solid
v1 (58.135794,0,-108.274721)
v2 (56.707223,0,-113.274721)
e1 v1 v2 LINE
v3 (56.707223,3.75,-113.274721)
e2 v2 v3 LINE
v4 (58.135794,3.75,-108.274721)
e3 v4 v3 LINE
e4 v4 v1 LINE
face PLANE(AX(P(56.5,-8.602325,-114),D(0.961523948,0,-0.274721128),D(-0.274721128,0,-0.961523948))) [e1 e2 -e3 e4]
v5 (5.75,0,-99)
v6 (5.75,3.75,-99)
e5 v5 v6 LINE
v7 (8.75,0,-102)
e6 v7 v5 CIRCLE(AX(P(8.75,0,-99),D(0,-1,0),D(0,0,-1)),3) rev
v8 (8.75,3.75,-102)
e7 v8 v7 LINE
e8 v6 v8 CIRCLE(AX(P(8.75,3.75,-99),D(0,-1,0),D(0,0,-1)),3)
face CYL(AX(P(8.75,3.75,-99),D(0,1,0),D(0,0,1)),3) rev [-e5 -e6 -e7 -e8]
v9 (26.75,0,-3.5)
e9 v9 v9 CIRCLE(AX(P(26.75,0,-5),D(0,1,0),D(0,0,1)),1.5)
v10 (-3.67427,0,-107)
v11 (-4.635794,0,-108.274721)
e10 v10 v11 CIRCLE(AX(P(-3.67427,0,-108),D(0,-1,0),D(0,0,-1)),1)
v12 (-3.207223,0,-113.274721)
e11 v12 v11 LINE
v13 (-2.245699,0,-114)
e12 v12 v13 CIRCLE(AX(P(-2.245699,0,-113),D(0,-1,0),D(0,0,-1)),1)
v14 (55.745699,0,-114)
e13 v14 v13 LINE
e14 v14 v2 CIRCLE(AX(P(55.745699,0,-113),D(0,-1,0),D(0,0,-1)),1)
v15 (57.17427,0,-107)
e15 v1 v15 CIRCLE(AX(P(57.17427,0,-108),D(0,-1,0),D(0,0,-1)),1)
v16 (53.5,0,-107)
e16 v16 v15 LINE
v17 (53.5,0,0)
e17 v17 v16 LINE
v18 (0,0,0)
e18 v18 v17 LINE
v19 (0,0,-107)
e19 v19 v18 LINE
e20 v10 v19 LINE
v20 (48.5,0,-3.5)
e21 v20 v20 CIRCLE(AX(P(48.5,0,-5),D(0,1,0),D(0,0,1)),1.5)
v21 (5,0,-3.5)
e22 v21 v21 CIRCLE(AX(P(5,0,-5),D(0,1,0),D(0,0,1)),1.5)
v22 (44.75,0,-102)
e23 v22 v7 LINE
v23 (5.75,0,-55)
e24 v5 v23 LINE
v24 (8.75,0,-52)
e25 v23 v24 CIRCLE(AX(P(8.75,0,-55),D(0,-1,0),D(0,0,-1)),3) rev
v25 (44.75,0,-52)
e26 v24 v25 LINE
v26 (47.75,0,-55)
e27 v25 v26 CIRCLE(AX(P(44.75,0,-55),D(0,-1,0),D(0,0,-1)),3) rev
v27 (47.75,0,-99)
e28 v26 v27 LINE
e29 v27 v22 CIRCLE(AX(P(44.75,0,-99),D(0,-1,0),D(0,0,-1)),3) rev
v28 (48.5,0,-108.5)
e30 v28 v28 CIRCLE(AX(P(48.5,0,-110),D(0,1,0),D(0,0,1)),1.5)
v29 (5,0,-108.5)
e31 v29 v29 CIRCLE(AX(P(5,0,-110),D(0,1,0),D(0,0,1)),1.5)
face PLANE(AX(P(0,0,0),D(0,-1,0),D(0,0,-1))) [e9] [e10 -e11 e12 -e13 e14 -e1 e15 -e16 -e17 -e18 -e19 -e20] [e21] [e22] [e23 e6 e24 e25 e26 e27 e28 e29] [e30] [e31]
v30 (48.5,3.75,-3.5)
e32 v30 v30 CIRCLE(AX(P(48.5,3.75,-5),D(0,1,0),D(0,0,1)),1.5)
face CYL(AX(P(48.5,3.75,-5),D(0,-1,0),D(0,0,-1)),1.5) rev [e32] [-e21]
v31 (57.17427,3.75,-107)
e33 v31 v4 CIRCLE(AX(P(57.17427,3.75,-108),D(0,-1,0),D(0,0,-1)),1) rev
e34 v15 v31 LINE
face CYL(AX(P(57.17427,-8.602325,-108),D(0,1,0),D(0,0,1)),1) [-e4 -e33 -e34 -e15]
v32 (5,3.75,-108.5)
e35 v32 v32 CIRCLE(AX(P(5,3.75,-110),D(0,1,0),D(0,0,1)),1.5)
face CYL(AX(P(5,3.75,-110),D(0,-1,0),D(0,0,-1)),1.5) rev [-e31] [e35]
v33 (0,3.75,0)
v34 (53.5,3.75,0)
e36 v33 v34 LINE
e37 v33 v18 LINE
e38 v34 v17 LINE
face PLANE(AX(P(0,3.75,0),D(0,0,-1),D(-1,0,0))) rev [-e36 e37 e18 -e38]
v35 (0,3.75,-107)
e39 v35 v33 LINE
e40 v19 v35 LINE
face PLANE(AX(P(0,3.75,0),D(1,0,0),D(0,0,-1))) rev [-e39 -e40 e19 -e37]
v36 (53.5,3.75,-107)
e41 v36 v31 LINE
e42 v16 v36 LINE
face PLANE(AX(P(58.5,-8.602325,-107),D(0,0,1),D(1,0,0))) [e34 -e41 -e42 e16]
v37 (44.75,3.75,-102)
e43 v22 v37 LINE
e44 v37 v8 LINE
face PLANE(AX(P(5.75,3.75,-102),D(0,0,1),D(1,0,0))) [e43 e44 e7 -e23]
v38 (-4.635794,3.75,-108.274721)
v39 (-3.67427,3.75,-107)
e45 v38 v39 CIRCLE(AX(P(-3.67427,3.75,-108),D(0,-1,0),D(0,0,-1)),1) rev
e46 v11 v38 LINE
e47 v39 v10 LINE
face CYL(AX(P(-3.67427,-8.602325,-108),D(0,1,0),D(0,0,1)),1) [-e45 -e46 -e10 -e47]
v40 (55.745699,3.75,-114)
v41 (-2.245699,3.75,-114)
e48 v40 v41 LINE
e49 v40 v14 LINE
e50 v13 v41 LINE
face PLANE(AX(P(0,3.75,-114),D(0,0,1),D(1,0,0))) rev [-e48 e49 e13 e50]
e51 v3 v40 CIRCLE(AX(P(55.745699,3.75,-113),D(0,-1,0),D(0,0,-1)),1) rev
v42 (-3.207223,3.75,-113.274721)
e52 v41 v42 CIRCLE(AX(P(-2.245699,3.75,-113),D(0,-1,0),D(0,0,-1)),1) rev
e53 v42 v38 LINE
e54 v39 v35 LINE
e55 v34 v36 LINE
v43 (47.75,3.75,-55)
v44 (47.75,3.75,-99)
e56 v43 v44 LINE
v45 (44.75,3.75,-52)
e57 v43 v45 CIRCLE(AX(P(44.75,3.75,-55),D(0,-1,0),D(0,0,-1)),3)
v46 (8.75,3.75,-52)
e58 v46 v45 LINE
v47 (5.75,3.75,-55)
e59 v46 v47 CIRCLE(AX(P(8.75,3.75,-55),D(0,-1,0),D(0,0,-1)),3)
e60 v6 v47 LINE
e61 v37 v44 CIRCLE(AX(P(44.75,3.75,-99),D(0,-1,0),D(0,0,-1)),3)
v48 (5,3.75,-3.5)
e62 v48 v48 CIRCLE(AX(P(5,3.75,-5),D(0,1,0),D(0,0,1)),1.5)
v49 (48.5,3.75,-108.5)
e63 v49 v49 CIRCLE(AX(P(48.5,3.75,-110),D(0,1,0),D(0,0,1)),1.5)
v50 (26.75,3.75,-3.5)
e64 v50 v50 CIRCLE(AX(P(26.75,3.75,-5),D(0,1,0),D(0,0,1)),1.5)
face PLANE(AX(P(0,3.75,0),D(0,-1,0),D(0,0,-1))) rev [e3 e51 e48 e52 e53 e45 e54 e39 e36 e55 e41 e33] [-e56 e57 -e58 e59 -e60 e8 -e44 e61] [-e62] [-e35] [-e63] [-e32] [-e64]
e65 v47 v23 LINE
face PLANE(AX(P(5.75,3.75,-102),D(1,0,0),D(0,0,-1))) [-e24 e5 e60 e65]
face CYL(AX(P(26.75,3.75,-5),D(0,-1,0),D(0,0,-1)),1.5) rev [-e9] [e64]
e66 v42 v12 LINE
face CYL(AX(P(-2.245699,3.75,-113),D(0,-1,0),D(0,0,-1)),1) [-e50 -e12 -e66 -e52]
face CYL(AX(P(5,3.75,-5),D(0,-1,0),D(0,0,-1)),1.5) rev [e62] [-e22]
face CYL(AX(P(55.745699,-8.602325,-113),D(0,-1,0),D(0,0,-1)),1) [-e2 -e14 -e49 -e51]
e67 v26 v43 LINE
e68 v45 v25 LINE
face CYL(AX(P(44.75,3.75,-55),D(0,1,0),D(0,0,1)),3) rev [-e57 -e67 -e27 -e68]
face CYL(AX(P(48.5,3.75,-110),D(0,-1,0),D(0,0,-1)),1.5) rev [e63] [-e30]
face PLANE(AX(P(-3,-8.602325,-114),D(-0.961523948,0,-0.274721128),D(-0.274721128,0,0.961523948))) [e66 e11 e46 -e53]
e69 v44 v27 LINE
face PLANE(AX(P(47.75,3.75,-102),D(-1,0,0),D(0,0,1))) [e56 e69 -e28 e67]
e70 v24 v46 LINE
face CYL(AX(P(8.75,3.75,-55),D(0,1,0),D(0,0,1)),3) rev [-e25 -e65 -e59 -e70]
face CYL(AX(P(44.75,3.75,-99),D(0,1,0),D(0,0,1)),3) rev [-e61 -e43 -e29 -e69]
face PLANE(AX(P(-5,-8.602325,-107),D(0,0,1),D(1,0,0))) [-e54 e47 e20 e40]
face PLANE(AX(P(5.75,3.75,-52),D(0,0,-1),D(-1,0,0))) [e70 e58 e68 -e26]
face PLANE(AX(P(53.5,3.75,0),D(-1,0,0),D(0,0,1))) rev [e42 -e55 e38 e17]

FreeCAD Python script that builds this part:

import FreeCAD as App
import Part
import Sketcher


def edges_at(feature, points):
    """Names of the edges that pass closest to the given points."""
    edges = feature.Shape.Edges
    near = lambda p: min(range(len(edges)), key=lambda i: edges[i].distToShape(Part.Vertex(*p))[0])
    return sorted({f"Edge{near(p) + 1}" for p in points})


def add_polygon(sketch, points):
    """Adds a closed chain of lines whose ends are joined by coincident constraints."""
    first, n = sketch.GeometryCount, len(points)
    for a, b in zip(points, points[1:] + points[:1]):
        sketch.addGeometry(Part.LineSegment(App.Vector(*a, 0), App.Vector(*b, 0)), False)
    for i in range(n):
        sketch.addConstraint(Sketcher.Constraint("Coincident", first + i, 2, first + (i + 1) % n, 1))

doc = App.newDocument("Part")
params = doc.addObject("Spreadsheet::Sheet", "Params")
for row, (alias, value) in enumerate([
    ("sketch1_diameter", "3 mm"),
    ("sketch1_width", "42 mm"),
    ("sketch1_height", "114 mm"),
    ("sketch1_height2", "50 mm"),
    ("sketch1_width2", "53.5 mm"),
    ("pad1_length", "3.75 mm"),
    ("fillet_radius", "3 mm"),
    ("sketch2_width", "3 mm"),
    ("sketch2_width2", "5 mm"),
    ("sketch2_height", "7 mm"),
    ("pad2_length", "3.75 mm"),
    ("fillet2_radius", "1 mm"),
], start=1):
    params.set(f"A{row}", alias)
    params.set(f"B{row}", "=" + value)
    params.setAlias(f"B{row}", alias)

body = doc.addObject("PartDesign::Body", "Body")

# Sketch on XZ plane
sketch1 = body.newObject("Sketcher::SketchObject", "Sketch")
sketch1.AttachmentSupport = (doc.getObject("XZ_Plane"), [""])
sketch1.MapMode = "FlatFace"
add_polygon(sketch1, [(0, -114), (0, 0), (53.5, 0), (53.5, -114)])  # lines 0-3
sketch1.addGeometry(Part.Circle(App.Vector(5, -5, 0), App.Vector(0, 0, 1), 1.5), False)  # 4
sketch1.addGeometry(Part.Circle(App.Vector(26.8, -5, 0), App.Vector(0, 0, 1), 1.5), False)  # 5
sketch1.addGeometry(Part.Circle(App.Vector(48.5, -5, 0), App.Vector(0, 0, 1), 1.5), False)  # 6
sketch1.addGeometry(Part.Circle(App.Vector(5, -110, 0), App.Vector(0, 0, 1), 1.5), False)  # 7
add_polygon(sketch1, [(47.8, -52), (5.8, -52), (5.8, -102), (47.8, -102)])  # lines 8-11
sketch1.addGeometry(Part.Circle(App.Vector(48.5, -110, 0), App.Vector(0, 0, 1), 1.5), False)  # 12
sketch1.addConstraint(Sketcher.Constraint("Vertical", 0))
sketch1.addConstraint(Sketcher.Constraint("Horizontal", 1))
sketch1.addConstraint(Sketcher.Constraint("Vertical", 2))
sketch1.addConstraint(Sketcher.Constraint("Horizontal", 3))
sketch1.addConstraint(Sketcher.Constraint("Horizontal", 8))
sketch1.addConstraint(Sketcher.Constraint("Vertical", 9))
sketch1.addConstraint(Sketcher.Constraint("Horizontal", 10))
sketch1.addConstraint(Sketcher.Constraint("Vertical", 11))
sketch1.addConstraint(Sketcher.Constraint("Coincident", 0, 2, -1, 1))
sketch1.addConstraint(Sketcher.Constraint("Equal", 4, 5))
sketch1.addConstraint(Sketcher.Constraint("Equal", 5, 6))
sketch1.addConstraint(Sketcher.Constraint("Equal", 6, 7))
sketch1.addConstraint(Sketcher.Constraint("Equal", 7, 12))
sketch1.addConstraint(Sketcher.Constraint("Horizontal", 4, 3, 5, 3))
sketch1.addConstraint(Sketcher.Constraint("Horizontal", 5, 3, 6, 3))
sketch1.addConstraint(Sketcher.Constraint("Horizontal", 7, 3, 12, 3))
sketch1.addConstraint(Sketcher.Constraint("Vertical", 4, 3, 7, 3))
sketch1.addConstraint(Sketcher.Constraint("Vertical", 6, 3, 12, 3))
sketch1.addConstraint(Sketcher.Constraint("Diameter", 4, 3.0))
sketch1.addConstraint(Sketcher.Constraint("DistanceX", 8, 2, 8, 1, 42.0))
sketch1.addConstraint(Sketcher.Constraint("DistanceY", 0, 1, 0, 2, 114.0))
sketch1.addConstraint(Sketcher.Constraint("DistanceY", 9, 2, 9, 1, 50.0))
sketch1.addConstraint(Sketcher.Constraint("DistanceX", 1, 1, 1, 2, 53.5))
sketch1.addConstraint(Sketcher.Constraint("DistanceX", -1, 1, 4, 3, 5.0))
sketch1.addConstraint(Sketcher.Constraint("DistanceY", 4, 3, -1, 1, 5.0))
sketch1.addConstraint(Sketcher.Constraint("DistanceY", 7, 3, -1, 1, 110.0))
sketch1.addConstraint(Sketcher.Constraint("DistanceY", 8, 2, -1, 1, 52.0))
sketch1.addConstraint(Sketcher.Constraint("DistanceX", 6, 3, 1, 2, 5.0))
sketch1.addConstraint(Sketcher.Constraint("DistanceX", 8, 2, 5, 3, 21.0))
sketch1.addConstraint(Sketcher.Constraint("DistanceX", -1, 1, 5, 3, 26.75))
sketch1.setExpression("Constraints[26]", "Params.sketch1_diameter")
sketch1.setExpression("Constraints[27]", "Params.sketch1_width")
sketch1.setExpression("Constraints[28]", "Params.sketch1_height")
sketch1.setExpression("Constraints[29]", "Params.sketch1_height2")
sketch1.setExpression("Constraints[30]", "Params.sketch1_width2")
pad1 = body.newObject("PartDesign::Pad", "Pad")
pad1.Profile = sketch1
pad1.setExpression("Length", "Params.pad1_length")
pad1.Reversed = True
doc.recompute()

fillet = body.newObject("PartDesign::Fillet", "Fillet")
fillet.Base = (pad1, edges_at(pad1, [
    (5.75, 1.875, -102),
    (5.75, 1.875, -52),
    (47.75, 1.875, -52),
    (47.75, 1.875, -102),
]))
fillet.setExpression("Radius", "Params.fillet_radius")

# Sketch on XZ plane
sketch2 = body.newObject("Sketcher::SketchObject", "Sketch001")
sketch2.AttachmentSupport = (doc.getObject("XZ_Plane"), [""])
sketch2.MapMode = "FlatFace"
sketch2.AttachmentOffset = App.Placement(App.Vector(0, 0, -3.75), App.Rotation())
add_polygon(sketch2, [(0, -114), (-3, -114), (-5, -107), (0, -107)])  # lines 0-3
add_polygon(sketch2, [(56.5, -114), (53.5, -114), (53.5, -107), (58.5, -107)])  # lines 4-7
sketch2.addConstraint(Sketcher.Constraint("Horizontal", 0))
sketch2.addConstraint(Sketcher.Constraint("Horizontal", 2))
sketch2.addConstraint(Sketcher.Constraint("Vertical", 3))
sketch2.addConstraint(Sketcher.Constraint("Horizontal", 4))
sketch2.addConstraint(Sketcher.Constraint("Vertical", 5))
sketch2.addConstraint(Sketcher.Constraint("Horizontal", 6))
sketch2.addConstraint(Sketcher.Constraint("PointOnObject", 2, 2, -2))
sketch2.addConstraint(Sketcher.Constraint("Horizontal", 3, 2, 4, 2))
sketch2.addConstraint(Sketcher.Constraint("Horizontal", 2, 2, 5, 2))
sketch2.addConstraint(Sketcher.Constraint("Equal", 0, 4))
sketch2.addConstraint(Sketcher.Constraint("Equal", 2, 6))
sketch2.addConstraint(Sketcher.Constraint("DistanceX", 0, 2, 0, 1, 3.0))
sketch2.addConstraint(Sketcher.Constraint("DistanceX", 2, 1, 2, 2, 5.0))
sketch2.addConstraint(Sketcher.Constraint("DistanceY", 3, 2, 3, 1, 7.0))
sketch2.addConstraint(Sketcher.Constraint("DistanceY", 0, 2, -1, 1, 114.0))
sketch2.addConstraint(Sketcher.Constraint("DistanceX", -1, 1, 4, 2, 53.5))
sketch2.setExpression("Constraints[19]", "Params.sketch2_width")
sketch2.setExpression("Constraints[20]", "Params.sketch2_width2")
sketch2.setExpression("Constraints[21]", "Params.sketch2_height")
pad2 = body.newObject("PartDesign::Pad", "Pad001")
pad2.Profile = sketch2
pad2.setExpression("Length", "Params.pad2_length")
doc.recompute()

fillet2 = body.newObject("PartDesign::Fillet", "Fillet001")
fillet2.Base = (pad2, edges_at(pad2, [
    (56.5, 1.875, -114),
    (58.5, 1.875, -107),
    (-5, 1.875, -107),
    (-3, 1.875, -114),
]))
fillet2.setExpression("Radius", "Params.fillet2_radius")

doc.recompute()
